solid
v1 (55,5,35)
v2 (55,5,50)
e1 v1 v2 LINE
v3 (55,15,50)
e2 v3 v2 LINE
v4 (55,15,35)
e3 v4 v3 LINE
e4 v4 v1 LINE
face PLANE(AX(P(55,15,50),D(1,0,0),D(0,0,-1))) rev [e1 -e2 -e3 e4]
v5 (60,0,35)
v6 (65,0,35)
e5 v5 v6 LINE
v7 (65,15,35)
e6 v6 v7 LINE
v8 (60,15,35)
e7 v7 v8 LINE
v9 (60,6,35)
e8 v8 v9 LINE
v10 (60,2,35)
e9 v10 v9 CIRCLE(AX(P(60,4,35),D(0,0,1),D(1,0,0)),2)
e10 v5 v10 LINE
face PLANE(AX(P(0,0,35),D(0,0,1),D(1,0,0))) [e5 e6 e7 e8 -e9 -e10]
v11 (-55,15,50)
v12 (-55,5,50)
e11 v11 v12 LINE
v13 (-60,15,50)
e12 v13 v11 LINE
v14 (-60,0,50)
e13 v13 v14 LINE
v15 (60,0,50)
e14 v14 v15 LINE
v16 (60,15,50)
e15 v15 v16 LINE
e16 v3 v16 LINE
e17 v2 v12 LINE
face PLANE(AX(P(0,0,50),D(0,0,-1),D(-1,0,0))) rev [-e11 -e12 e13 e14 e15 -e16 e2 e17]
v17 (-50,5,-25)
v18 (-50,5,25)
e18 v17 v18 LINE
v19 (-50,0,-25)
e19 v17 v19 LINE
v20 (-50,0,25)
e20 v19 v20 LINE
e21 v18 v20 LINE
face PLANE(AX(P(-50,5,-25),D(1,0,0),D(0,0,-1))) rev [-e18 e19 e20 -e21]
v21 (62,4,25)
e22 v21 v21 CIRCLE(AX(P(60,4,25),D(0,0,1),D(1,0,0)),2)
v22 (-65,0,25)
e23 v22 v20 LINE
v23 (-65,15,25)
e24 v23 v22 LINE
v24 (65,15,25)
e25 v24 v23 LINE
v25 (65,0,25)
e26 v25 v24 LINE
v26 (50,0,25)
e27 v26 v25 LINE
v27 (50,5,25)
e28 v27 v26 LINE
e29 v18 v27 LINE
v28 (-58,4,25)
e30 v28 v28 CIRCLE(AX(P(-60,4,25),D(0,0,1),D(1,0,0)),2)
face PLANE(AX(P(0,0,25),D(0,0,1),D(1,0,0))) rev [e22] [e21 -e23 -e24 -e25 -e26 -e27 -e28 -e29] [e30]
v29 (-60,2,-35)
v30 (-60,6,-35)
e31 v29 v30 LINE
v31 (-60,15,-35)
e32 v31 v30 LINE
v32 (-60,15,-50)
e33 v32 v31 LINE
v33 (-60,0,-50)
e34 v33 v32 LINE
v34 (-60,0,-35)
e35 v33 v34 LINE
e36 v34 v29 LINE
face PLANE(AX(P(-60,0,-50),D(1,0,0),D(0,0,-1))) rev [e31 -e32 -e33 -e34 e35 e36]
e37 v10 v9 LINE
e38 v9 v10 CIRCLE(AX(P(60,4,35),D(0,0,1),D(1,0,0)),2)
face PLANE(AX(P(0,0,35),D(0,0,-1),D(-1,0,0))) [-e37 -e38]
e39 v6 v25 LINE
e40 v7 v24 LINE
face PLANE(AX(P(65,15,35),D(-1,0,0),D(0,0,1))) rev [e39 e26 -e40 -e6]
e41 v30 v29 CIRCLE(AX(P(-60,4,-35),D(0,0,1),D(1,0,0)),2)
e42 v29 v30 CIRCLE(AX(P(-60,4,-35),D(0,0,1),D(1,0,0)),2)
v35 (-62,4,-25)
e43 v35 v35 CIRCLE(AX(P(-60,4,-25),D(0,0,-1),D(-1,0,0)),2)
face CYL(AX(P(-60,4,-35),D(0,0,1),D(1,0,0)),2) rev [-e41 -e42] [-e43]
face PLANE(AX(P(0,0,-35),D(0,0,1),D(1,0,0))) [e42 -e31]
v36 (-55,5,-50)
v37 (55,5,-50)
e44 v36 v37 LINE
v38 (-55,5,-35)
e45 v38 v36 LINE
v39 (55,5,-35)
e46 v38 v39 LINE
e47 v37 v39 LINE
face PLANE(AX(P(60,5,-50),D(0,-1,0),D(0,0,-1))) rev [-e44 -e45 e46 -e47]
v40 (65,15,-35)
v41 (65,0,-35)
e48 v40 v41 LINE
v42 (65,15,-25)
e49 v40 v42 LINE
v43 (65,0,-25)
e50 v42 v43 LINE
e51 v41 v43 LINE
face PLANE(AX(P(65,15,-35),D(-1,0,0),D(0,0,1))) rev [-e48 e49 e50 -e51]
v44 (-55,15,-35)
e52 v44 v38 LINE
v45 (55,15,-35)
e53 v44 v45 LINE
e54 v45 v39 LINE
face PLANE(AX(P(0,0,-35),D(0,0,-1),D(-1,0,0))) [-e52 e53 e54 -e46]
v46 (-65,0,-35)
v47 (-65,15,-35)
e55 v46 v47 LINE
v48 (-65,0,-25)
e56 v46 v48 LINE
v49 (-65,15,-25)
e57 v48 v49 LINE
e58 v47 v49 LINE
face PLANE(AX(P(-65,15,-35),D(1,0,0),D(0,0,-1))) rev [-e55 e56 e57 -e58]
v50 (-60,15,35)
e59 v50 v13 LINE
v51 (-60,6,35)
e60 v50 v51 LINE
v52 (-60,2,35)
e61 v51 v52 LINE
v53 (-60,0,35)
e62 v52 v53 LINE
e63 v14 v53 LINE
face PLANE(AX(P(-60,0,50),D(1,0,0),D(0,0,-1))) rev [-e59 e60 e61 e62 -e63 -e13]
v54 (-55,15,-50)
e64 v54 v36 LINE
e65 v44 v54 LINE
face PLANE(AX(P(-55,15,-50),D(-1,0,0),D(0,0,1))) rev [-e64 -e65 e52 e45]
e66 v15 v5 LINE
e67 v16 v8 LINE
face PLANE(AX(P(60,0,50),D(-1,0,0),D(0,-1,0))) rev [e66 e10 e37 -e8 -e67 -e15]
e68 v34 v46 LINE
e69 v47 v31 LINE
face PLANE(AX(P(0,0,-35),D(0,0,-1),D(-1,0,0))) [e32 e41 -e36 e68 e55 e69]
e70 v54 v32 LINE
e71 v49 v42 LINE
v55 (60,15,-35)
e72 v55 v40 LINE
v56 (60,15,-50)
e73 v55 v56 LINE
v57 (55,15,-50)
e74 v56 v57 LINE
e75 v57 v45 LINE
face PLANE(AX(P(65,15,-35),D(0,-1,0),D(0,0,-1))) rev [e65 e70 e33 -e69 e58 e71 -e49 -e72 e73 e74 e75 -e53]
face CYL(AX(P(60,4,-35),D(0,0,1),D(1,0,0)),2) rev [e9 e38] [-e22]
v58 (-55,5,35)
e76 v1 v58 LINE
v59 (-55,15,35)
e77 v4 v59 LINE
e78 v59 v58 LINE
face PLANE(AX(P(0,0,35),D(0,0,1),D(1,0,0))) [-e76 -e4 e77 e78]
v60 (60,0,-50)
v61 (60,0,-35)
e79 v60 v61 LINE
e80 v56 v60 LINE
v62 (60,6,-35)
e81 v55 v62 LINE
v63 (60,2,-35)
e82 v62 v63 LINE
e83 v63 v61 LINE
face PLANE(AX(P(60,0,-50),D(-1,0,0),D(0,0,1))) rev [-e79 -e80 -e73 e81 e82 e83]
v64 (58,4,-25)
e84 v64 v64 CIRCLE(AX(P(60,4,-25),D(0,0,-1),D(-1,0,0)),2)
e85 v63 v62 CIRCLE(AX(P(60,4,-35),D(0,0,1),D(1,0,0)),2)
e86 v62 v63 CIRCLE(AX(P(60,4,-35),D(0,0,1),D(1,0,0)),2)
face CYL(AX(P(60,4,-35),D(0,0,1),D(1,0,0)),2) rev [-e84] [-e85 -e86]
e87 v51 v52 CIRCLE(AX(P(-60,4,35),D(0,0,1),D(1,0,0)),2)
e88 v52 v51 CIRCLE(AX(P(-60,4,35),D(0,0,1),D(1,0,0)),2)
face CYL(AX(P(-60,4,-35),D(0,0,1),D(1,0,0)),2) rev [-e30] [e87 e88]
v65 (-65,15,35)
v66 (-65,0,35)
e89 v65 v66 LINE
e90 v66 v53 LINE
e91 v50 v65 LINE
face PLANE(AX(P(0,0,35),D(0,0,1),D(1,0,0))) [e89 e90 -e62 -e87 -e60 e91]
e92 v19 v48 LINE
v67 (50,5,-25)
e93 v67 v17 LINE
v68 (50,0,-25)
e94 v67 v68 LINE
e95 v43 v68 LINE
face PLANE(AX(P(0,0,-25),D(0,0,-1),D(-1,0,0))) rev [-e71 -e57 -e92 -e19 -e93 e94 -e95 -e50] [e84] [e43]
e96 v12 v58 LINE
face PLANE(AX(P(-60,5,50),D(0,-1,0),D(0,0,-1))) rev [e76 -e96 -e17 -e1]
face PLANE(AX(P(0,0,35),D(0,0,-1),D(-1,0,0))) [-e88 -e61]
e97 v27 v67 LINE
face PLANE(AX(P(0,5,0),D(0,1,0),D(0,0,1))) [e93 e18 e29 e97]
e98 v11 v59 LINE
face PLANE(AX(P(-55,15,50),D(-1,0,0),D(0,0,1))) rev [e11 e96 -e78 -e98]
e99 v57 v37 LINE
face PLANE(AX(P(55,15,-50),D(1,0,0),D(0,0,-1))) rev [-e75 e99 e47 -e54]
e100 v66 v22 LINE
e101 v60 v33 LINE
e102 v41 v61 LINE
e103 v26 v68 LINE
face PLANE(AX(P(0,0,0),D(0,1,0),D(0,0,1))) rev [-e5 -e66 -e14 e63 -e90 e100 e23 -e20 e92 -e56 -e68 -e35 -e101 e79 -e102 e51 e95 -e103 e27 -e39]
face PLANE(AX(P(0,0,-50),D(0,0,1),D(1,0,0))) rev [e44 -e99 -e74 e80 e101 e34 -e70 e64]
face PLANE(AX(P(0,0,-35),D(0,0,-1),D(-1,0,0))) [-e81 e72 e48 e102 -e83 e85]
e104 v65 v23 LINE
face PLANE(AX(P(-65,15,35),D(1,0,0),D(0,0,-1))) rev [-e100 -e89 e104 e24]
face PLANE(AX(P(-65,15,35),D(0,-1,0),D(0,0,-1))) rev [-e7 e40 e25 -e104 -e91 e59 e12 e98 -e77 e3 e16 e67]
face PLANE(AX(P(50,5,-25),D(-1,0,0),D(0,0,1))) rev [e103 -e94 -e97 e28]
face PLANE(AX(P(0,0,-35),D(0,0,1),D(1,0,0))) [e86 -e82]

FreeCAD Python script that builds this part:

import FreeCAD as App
import Part
import Sketcher

V = App.Vector


def add_polygon(sketch, points):
    """Adds a closed chain of lines whose ends are joined by coincident constraints."""
    first, n = sketch.GeometryCount, len(points)
    for a, b in zip(points, points[1:] + points[:1]):
        sketch.addGeometry(Part.LineSegment(App.Vector(*a, 0), App.Vector(*b, 0)), False)
    for i in range(n):
        sketch.addConstraint(Sketcher.Constraint("Coincident", first + i, 2, first + (i + 1) % n, 1))

doc = App.newDocument("Part")
body = doc.addObject("PartDesign::Body", "Body")

# Sketch on XZ plane
sketch1 = body.newObject("Sketcher::SketchObject", "Sketch")
sketch1.AttachmentSupport = (doc.getObject("XZ_Plane"), [""])
sketch1.MapMode = "FlatFace"
add_polygon(sketch1, [(-50, -25), (-50, 25), (50, 25), (50, -25)])  # lines 0-3
sketch1.addConstraint(Sketcher.Constraint("Vertical", 0))
sketch1.addConstraint(Sketcher.Constraint("Horizontal", 1))
sketch1.addConstraint(Sketcher.Constraint("Vertical", 2))
sketch1.addConstraint(Sketcher.Constraint("Horizontal", 3))
sketch1.addConstraint(Sketcher.Constraint("Symmetric", 0, 2, 2, 2, -1, 1))
sketch1.addConstraint(Sketcher.Constraint("DistanceX", 1, 1, 1, 2, 100.0))
sketch1.addConstraint(Sketcher.Constraint("DistanceY", 0, 1, 0, 2, 50.0))
pad1 = body.newObject("PartDesign::Pad", "Pad")
pad1.Profile = sketch1
pad1.Length = 5
pad1.Reversed = True

# Sketch on XY plane
sketch2 = body.newObject("Sketcher::SketchObject", "Sketch001")
sketch2.AttachmentSupport = (doc.getObject("XY_Plane"), [""])
sketch2.MapMode = "FlatFace"
sketch2.AttachmentOffset = App.Placement(V(0, 0, 25), App.Rotation())
add_polygon(sketch2, [(-65, 15), (-65, 0), (65, 0), (65, 15)])  # lines 0-3
sketch2.addConstraint(Sketcher.Constraint("Vertical", 0))
sketch2.addConstraint(Sketcher.Constraint("Horizontal", 1))
sketch2.addConstraint(Sketcher.Constraint("Vertical", 2))
sketch2.addConstraint(Sketcher.Constraint("Horizontal", 3))
sketch2.addConstraint(Sketcher.Constraint("Symmetric", 0, 2, 1, 2, -1, 1))
sketch2.addConstraint(Sketcher.Constraint("DistanceX", 1, 1, 1, 2, 130.0))
sketch2.addConstraint(Sketcher.Constraint("DistanceY", 0, 2, 0, 1, 15.0))
pad2 = body.newObject("PartDesign::Pad", "Pad001")
pad2.Profile = sketch2
pad2.Length = 10

# Sketch on XY plane
sketch3 = body.newObject("Sketcher::SketchObject", "Sketch002")
sketch3.AttachmentSupport = (doc.getObject("XY_Plane"), [""])
sketch3.MapMode = "FlatFace"
sketch3.AttachmentOffset = App.Placement(V(0, 0, -25), App.Rotation())
add_polygon(sketch3, [(65, 15), (65, 0), (-65, 0), (-65, 15)])  # lines 0-3
sketch3.addConstraint(Sketcher.Constraint("Vertical", 0))
sketch3.addConstraint(Sketcher.Constraint("Horizontal", 1))
sketch3.addConstraint(Sketcher.Constraint("Vertical", 2))
sketch3.addConstraint(Sketcher.Constraint("Horizontal", 3))
sketch3.addConstraint(Sketcher.Constraint("Symmetric", 0, 2, 1, 2, -1, 1))
sketch3.addConstraint(Sketcher.Constraint("DistanceX", 1, 2, 1, 1, 130.0))
sketch3.addConstraint(Sketcher.Constraint("DistanceY", 0, 2, 0, 1, 15.0))
pad3 = body.newObject("PartDesign::Pad", "Pad002")
pad3.Profile = sketch3
pad3.Length = 10
pad3.Reversed = True

# Sketch on XY plane
sketch4 = body.newObject("Sketcher::SketchObject", "Sketch003")
sketch4.AttachmentSupport = (doc.getObject("XY_Plane"), [""])
sketch4.MapMode = "FlatFace"
sketch4.AttachmentOffset = App.Placement(V(0, 0, 35), App.Rotation())
sketch4.addGeometry(Part.Circle(V(-60, 4, 0), V(0, 0, 1), 2), False)
sketch4.addConstraint(Sketcher.Constraint("Diameter", 0, 4.0))
sketch4.addConstraint(Sketcher.Constraint("DistanceX", 0, 3, -1, 1, 60.0))
sketch4.addConstraint(Sketcher.Constraint("DistanceY", -1, 1, 0, 3, 4.0))
pocket1 = body.newObject("PartDesign::Pocket", "Pocket")
pocket1.Profile = sketch4
pocket1.Type = "ThroughAll"

# Sketch on XY plane
sketch5 = body.newObject("Sketcher::SketchObject", "Sketch004")
sketch5.AttachmentSupport = (doc.getObject("XY_Plane"), [""])
sketch5.MapMode = "FlatFace"
sketch5.AttachmentOffset = App.Placement(V(0, 0, 35), App.Rotation())
sketch5.addGeometry(Part.Circle(V(60, 4, 0), V(0, 0, 1), 2), False)
sketch5.addConstraint(Sketcher.Constraint("Diameter", 0, 4.0))
sketch5.addConstraint(Sketcher.Constraint("DistanceX", -1, 1, 0, 3, 60.0))
sketch5.addConstraint(Sketcher.Constraint("DistanceY", -1, 1, 0, 3, 4.0))
pocket2 = body.newObject("PartDesign::Pocket", "Pocket001")
pocket2.Profile = sketch5
pocket2.Type = "ThroughAll"

# Sketch on XY plane
sketch6 = body.newObject("Sketcher::SketchObject", "Sketch005")
sketch6.AttachmentSupport = (doc.getObject("XY_Plane"), [""])
sketch6.MapMode = "FlatFace"
sketch6.AttachmentOffset = App.Placement(V(0, 0, 35), App.Rotation())
add_polygon(sketch6, [(-60, 5), (-60, 0), (60, 0), (60, 5)])  # lines 0-3
sketch6.addConstraint(Sketcher.Constraint("Vertical", 0))
sketch6.addConstraint(Sketcher.Constraint("Horizontal", 1))
sketch6.addConstraint(Sketcher.Constraint("Vertical", 2))
sketch6.addConstraint(Sketcher.Constraint("Horizontal", 3))
sketch6.addConstraint(Sketcher.Constraint("Symmetric", 0, 2, 1, 2, -1, 1))
sketch6.addConstraint(Sketcher.Constraint("DistanceX", 1, 1, 1, 2, 120.0))
sketch6.addConstraint(Sketcher.Constraint("DistanceY", 0, 2, 0, 1, 5.0))
pad4 = body.newObject("PartDesign::Pad", "Pad003")
pad4.Profile = sketch6
pad4.Length = 15

# Sketch on XZ plane
sketch7 = body.newObject("Sketcher::SketchObject", "Sketch006")
sketch7.AttachmentSupport = (doc.getObject("XZ_Plane"), [""])
sketch7.MapMode = "FlatFace"
sketch7.AttachmentOffset = App.Placement(V(0, 0, -5), App.Rotation())
add_polygon(sketch7, [(-60, 35), (-60, 50), (-55, 50), (-55, 35)])  # lines 0-3
add_polygon(sketch7, [(55, 35), (55, 50), (60, 50), (60, 35)])  # lines 4-7
sketch7.addConstraint(Sketcher.Constraint("Vertical", 0))
sketch7.addConstraint(Sketcher.Constraint("Horizontal", 1))
sketch7.addConstraint(Sketcher.Constraint("Vertical", 2))
sketch7.addConstraint(Sketcher.Constraint("Horizontal", 3))
sketch7.addConstraint(Sketcher.Constraint("Vertical", 4))
sketch7.addConstraint(Sketcher.Constraint("Horizontal", 5))
sketch7.addConstraint(Sketcher.Constraint("Vertical", 6))
sketch7.addConstraint(Sketcher.Constraint("Horizontal", 7))
sketch7.addConstraint(Sketcher.Constraint("Symmetric", 1, 2, 4, 2, -2))
sketch7.addConstraint(Sketcher.Constraint("Symmetric", 3, 2, 6, 2, -2))
sketch7.addConstraint(Sketcher.Constraint("DistanceX", 1, 1, 1, 2, 5.0))
sketch7.addConstraint(Sketcher.Constraint("DistanceY", 0, 1, 0, 2, 15.0))
sketch7.addConstraint(Sketcher.Constraint("DistanceX", 0, 2, -1, 1, 60.0))
sketch7.addConstraint(Sketcher.Constraint("DistanceY", -1, 1, 0, 2, 50.0))
pad5 = body.newObject("PartDesign::Pad", "Pad004")
pad5.Profile = sketch7
pad5.Length = 10
pad5.Reversed = True

# Sketch on XY plane
sketch8 = body.newObject("Sketcher::SketchObject", "Sketch007")
sketch8.AttachmentSupport = (doc.getObject("XY_Plane"), [""])
sketch8.MapMode = "FlatFace"
sketch8.AttachmentOffset = App.Placement(V(0, 0, -35), App.Rotation())
add_polygon(sketch8, [(60, 5), (60, 0), (-60, 0), (-60, 5)])  # lines 0-3
sketch8.addConstraint(Sketcher.Constraint("Vertical", 0))
sketch8.addConstraint(Sketcher.Constraint("Horizontal", 1))
sketch8.addConstraint(Sketcher.Constraint("Vertical", 2))
sketch8.addConstraint(Sketcher.Constraint("Horizontal", 3))
sketch8.addConstraint(Sketcher.Constraint("Symmetric", 0, 2, 1, 2, -1, 1))
sketch8.addConstraint(Sketcher.Constraint("DistanceX", 1, 2, 1, 1, 120.0))
sketch8.addConstraint(Sketcher.Constraint("DistanceY", 0, 2, 0, 1, 5.0))
pad6 = body.newObject("PartDesign::Pad", "Pad005")
pad6.Profile = sketch8
pad6.Length = 15
pad6.Reversed = True

# Sketch on XZ plane
sketch9 = body.newObject("Sketcher::SketchObject", "Sketch008")
sketch9.AttachmentSupport = (doc.getObject("XZ_Plane"), [""])
sketch9.MapMode = "FlatFace"
sketch9.AttachmentOffset = App.Placement(V(0, 0, -5), App.Rotation())
add_polygon(sketch9, [(-60, -50), (-60, -35), (-55, -35), (-55, -50)])  # lines 0-3
add_polygon(sketch9, [(55, -50), (55, -35), (60, -35), (60, -50)])  # lines 4-7
sketch9.addConstraint(Sketcher.Constraint("Vertical", 0))
sketch9.addConstraint(Sketcher.Constraint("Horizontal", 1))
sketch9.addConstraint(Sketcher.Constraint("Vertical", 2))
sketch9.addConstraint(Sketcher.Constraint("Horizontal", 3))
sketch9.addConstraint(Sketcher.Constraint("Vertical", 4))
sketch9.addConstraint(Sketcher.Constraint("Horizontal", 5))
sketch9.addConstraint(Sketcher.Constraint("Vertical", 6))
sketch9.addConstraint(Sketcher.Constraint("Horizontal", 7))
sketch9.addConstraint(Sketcher.Constraint("Symmetric", 1, 2, 4, 2, -2))
sketch9.addConstraint(Sketcher.Constraint("Symmetric", 3, 2, 6, 2, -2))
sketch9.addConstraint(Sketcher.Constraint("DistanceX", 1, 1, 1, 2, 5.0))
sketch9.addConstraint(Sketcher.Constraint("DistanceY", 0, 1, 0, 2, 15.0))
sketch9.addConstraint(Sketcher.Constraint("DistanceX", 0, 2, -1, 1, 60.0))
sketch9.addConstraint(Sketcher.Constraint("DistanceY", 0, 2, -1, 1, 35.0))
pad7 = body.newObject("PartDesign::Pad", "Pad006")
pad7.Profile = sketch9
pad7.Length = 10
pad7.Reversed = True

doc.recompute()
